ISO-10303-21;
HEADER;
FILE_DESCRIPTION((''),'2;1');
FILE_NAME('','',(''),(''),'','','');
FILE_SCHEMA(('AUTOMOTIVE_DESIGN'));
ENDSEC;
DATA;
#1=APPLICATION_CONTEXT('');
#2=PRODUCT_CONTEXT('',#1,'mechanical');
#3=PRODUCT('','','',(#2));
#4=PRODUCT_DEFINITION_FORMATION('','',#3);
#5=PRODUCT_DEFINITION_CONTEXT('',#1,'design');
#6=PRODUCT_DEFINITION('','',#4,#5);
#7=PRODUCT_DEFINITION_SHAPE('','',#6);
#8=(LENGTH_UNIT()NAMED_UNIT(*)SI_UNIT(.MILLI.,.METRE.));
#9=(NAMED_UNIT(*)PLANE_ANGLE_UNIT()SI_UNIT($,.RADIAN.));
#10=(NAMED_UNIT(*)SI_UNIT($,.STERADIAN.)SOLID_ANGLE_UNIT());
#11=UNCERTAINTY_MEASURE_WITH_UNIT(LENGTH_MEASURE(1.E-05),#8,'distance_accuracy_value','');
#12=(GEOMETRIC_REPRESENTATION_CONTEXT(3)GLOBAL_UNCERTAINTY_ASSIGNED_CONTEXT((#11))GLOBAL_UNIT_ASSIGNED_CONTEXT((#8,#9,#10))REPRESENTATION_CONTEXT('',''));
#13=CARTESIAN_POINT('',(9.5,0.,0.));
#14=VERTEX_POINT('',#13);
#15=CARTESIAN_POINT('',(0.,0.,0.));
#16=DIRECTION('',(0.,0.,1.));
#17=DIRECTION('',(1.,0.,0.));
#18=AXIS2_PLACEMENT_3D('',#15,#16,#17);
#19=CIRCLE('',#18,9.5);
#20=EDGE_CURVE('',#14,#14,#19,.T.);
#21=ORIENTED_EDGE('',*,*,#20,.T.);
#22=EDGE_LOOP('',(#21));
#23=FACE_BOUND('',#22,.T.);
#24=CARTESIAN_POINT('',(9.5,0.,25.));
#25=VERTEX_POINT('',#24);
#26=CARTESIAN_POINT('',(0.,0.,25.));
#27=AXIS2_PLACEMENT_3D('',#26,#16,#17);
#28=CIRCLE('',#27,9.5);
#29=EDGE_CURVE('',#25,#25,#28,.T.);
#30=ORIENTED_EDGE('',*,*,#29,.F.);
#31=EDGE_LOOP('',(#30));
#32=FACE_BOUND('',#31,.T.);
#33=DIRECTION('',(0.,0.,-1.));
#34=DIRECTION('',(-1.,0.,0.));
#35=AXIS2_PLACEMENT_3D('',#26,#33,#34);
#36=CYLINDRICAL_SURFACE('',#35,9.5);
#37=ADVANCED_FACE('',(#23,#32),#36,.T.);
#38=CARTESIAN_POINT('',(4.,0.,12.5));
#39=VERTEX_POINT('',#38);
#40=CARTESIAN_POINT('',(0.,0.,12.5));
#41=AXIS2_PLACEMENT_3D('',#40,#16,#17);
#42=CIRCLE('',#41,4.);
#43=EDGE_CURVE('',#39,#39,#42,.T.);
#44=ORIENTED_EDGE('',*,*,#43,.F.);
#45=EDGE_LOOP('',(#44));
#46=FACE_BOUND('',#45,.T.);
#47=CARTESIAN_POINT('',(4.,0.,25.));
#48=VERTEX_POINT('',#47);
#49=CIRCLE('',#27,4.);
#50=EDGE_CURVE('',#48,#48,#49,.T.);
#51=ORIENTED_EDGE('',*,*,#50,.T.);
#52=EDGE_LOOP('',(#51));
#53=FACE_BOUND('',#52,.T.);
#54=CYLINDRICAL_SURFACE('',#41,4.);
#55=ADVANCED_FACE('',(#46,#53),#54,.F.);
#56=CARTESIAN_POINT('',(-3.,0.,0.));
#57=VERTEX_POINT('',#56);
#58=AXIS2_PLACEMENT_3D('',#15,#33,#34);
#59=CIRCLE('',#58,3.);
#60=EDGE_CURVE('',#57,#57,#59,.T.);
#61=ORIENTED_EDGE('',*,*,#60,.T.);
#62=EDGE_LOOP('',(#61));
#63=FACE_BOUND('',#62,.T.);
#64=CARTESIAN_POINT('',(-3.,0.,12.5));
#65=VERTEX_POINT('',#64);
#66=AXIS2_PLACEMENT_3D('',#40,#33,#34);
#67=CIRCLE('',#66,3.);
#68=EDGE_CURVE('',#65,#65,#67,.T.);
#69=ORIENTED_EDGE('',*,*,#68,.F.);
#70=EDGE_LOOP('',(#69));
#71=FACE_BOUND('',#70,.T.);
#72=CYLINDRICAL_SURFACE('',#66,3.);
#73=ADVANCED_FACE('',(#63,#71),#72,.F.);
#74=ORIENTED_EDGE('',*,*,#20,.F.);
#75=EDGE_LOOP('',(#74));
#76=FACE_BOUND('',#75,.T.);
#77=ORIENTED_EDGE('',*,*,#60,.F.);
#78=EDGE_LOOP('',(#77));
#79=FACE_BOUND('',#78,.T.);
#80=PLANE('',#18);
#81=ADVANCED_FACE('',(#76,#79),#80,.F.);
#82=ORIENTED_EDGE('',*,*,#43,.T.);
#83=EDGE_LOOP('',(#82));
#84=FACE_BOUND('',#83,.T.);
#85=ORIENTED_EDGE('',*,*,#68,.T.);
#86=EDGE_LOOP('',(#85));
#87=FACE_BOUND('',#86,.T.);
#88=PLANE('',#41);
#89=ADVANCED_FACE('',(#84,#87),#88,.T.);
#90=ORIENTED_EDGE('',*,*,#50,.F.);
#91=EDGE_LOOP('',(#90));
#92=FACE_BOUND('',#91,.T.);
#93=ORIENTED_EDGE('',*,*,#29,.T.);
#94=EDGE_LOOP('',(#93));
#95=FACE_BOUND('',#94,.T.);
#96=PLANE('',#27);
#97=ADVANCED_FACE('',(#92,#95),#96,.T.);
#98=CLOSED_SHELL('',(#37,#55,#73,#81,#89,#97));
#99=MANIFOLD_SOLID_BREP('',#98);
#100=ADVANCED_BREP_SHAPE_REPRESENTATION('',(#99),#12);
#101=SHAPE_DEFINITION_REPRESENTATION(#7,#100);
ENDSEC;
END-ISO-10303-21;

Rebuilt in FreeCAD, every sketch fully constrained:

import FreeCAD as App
import Part
import Sketcher
from FreeCAD import Vector
Q = App.Units.Quantity

doc = App.newDocument("Part")
body = doc.addObject("PartDesign::Body", "Body")

sketch1 = body.newObject("Sketcher::SketchObject", "Sketch")
sketch1.AttachmentSupport = (doc.getObject("XY_Plane"), [""])
sketch1.MapMode = "FlatFace"
sketch1.addGeometry(Part.Circle(Vector(0, 0, 0), Vector(0, 0, 1), 9.5), False)
sketch1.addConstraint([
    Sketcher.Constraint("Coincident", 0, 3, -1, 1),
    Sketcher.Constraint("Diameter", 0, Q("19 mm")),
])
pad1 = body.newObject("PartDesign::Pad", "Pad")
pad1.Profile = sketch1
pad1.Length = 25

sketch2 = body.newObject("Sketcher::SketchObject", "Sketch001")
sketch2.AttachmentSupport = (doc.getObject("XY_Plane"), [""])
sketch2.MapMode = "FlatFace"
sketch2.AttachmentOffset = App.Placement(Vector(0, 0, 25), App.Rotation())
sketch2.addGeometry(Part.Circle(Vector(0, 0, 0), Vector(0, 0, 1), 4), False)
sketch2.addConstraint([
    Sketcher.Constraint("Coincident", 0, 3, -1, 1),
    Sketcher.Constraint("Diameter", 0, Q("8 mm")),
])
pocket1 = body.newObject("PartDesign::Pocket", "Pocket")
pocket1.Profile = sketch2
pocket1.Length = 12.5

sketch3 = body.newObject("Sketcher::SketchObject", "Sketch002")
sketch3.AttachmentSupport = (doc.getObject("XY_Plane"), [""])
sketch3.MapMode = "FlatFace"
sketch3.addGeometry(Part.Circle(Vector(0, 0, 0), Vector(0, 0, 1), 3), False)
sketch3.addConstraint([
    Sketcher.Constraint("Coincident", 0, 3, -1, 1),
    Sketcher.Constraint("Diameter", 0, Q("6 mm")),
])
pocket2 = body.newObject("PartDesign::Pocket", "Pocket001")
pocket2.Profile = sketch3
pocket2.Length = 12.5
pocket2.Reversed = True

doc.recompute()
